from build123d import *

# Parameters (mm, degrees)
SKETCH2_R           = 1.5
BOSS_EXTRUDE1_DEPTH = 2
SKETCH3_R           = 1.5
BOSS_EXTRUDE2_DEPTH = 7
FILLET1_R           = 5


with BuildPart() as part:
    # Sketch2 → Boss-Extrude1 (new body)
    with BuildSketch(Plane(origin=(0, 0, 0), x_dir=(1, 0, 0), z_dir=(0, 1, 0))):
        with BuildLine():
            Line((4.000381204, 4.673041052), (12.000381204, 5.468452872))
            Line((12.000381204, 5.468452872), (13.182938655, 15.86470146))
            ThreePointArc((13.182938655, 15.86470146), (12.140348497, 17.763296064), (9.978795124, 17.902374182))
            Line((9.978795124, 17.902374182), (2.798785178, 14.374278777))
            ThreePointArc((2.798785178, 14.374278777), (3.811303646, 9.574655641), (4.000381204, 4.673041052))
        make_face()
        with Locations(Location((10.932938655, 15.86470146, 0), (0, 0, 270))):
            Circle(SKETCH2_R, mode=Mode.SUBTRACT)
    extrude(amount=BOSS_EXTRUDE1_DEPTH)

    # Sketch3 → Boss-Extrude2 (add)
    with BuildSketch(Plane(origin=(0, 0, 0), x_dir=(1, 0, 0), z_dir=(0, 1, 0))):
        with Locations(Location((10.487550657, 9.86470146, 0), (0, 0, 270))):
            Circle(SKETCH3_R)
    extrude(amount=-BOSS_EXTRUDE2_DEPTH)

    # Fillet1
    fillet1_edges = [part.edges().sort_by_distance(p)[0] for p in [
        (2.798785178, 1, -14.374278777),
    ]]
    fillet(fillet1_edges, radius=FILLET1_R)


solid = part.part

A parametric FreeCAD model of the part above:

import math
import FreeCAD as App
import Part
import Sketcher
from FreeCAD import Vector
Q = App.Units.Quantity


def edges_at(feature, points):
    """Names of the edges that pass closest to the given points."""
    edges = feature.Shape.Edges
    near = lambda p: min(range(len(edges)), key=lambda i: edges[i].distToShape(Part.Vertex(*p))[0])
    return sorted({f"Edge{near(p) + 1}" for p in points})

doc = App.newDocument("Part")
params = doc.addObject("Spreadsheet::Sheet", "Params")
for row, (alias, value) in enumerate([
    ("sketch1_diameter", "3 mm"),
    ("sketch1_radius", "2.25 mm"),
    ("sketch1_length", "8 mm"),
    ("pad1_length", "2 mm"),
    ("sketch2_diameter", "3 mm"),
    ("pad2_length", "7 mm"),
    ("fillet_radius", "5 mm"),
], start=1):
    params.set(f"A{row}", alias)
    params.set(f"B{row}", "=" + value)
    params.setAlias(f"B{row}", alias)

body = doc.addObject("PartDesign::Body", "Body")

# Sketch on XZ plane
sketch1 = body.newObject("Sketcher::SketchObject", "Sketch")
sketch1.AttachmentSupport = (doc.getObject("XZ_Plane"), [""])
sketch1.MapMode = "FlatFace"
sketch1.addGeometry([
    Part.LineSegment(Vector(4.000381, -4.673041, 0), Vector(12.000381, -5.468453, 0)),  # 0
    Part.LineSegment(Vector(12.000381, -5.468453, 0), Vector(13.182939, -15.864701, 0)),  # 1
    Part.ArcOfCircle(Part.Circle(Vector(10.932939, -15.864701, 0), Vector(0, 0, 1), 2.25), math.radians(-115.091419), math.radians(0)),  # 2
    Part.LineSegment(Vector(9.978795, -17.902374, 0), Vector(2.798785, -14.374279, 0)),  # 3
    Part.ArcOfCircle(Part.Circle(Vector(-24.967953, -6.010055, 0), Vector(0, 0, 1), 28.999172), math.radians(-16.763971), math.radians(2.642572)),  # 4
    Part.Circle(Vector(10.932939, -15.864701, 0), Vector(0, 0, 1), 1.5),  # 5
], False)
sketch1.addConstraint([
    Sketcher.Constraint("Coincident", 0, 2, 1, 1),
    Sketcher.Constraint("Coincident", 1, 2, 2, 2),
    Sketcher.Constraint("Coincident", 2, 1, 3, 1),
    Sketcher.Constraint("Coincident", 3, 2, 4, 1),
    Sketcher.Constraint("Coincident", 4, 2, 0, 1),
    Sketcher.Constraint("Coincident", 5, 3, 2, 3),
    Sketcher.Constraint("Horizontal", 5, 3, 1, 2),
    Sketcher.Constraint("Diameter", 5, Q("3 mm")),
    Sketcher.Constraint("Radius", 2, Q("2.25 mm")),
    Sketcher.Constraint("Distance", 3, Q("8 mm")),
    Sketcher.Constraint("DistanceX", 4, 2, 0, 2, Q("8 mm")),
    Sketcher.Constraint("Radius", 4, Q("28.999172 mm")),
    Sketcher.Constraint("DistanceY", 2, 3, -1, 1, Q("15.864701 mm")),
    Sketcher.Constraint("DistanceY", 4, 3, 0, 2, Q("0.541602 mm")),
    Sketcher.Constraint("Distance", 1, Q("10.463289 mm")),
    Sketcher.Constraint("DistanceX", -1, 1, 2, 3, Q("10.932939 mm")),
    Sketcher.Constraint("DistanceX", -1, 1, 0, 2, Q("12.000381 mm")),
    Sketcher.Constraint("DistanceY", 3, 2, -1, 1, Q("14.374279 mm")),
    Sketcher.Constraint("DistanceY", 4, 2, -1, 1, Q("4.673041 mm")),
])
sketch1.setExpression("Constraints[7]", "Params.sketch1_diameter")
sketch1.setExpression("Constraints[8]", "Params.sketch1_radius")
sketch1.setExpression("Constraints[9]", "Params.sketch1_length")
pad1 = body.newObject("PartDesign::Pad", "Pad")
pad1.Profile = sketch1
pad1.setExpression("Length", "Params.pad1_length")
pad1.Reversed = True

# Sketch on XZ plane
sketch2 = body.newObject("Sketcher::SketchObject", "Sketch001")
sketch2.AttachmentSupport = (doc.getObject("XZ_Plane"), [""])
sketch2.MapMode = "FlatFace"
sketch2.addGeometry(Part.Circle(Vector(10.487551, -9.864701, 0), Vector(0, 0, 1), 1.5), False)
sketch2.addConstraint([
    Sketcher.Constraint("Diameter", 0, Q("3 mm")),
    Sketcher.Constraint("DistanceY", 0, 3, -1, 1, Q("9.864701 mm")),
    Sketcher.Constraint("DistanceX", -1, 1, 0, 3, Q("10.487551 mm")),
])
sketch2.setExpression("Constraints[0]", "Params.sketch2_diameter")
pad2 = body.newObject("PartDesign::Pad", "Pad001")
pad2.Profile = sketch2
pad2.setExpression("Length", "Params.pad2_length")
doc.recompute()

fillet = body.newObject("PartDesign::Fillet", "Fillet")
fillet.Base = (pad2, edges_at(pad2, [(2.799, 1, -14.374)]))
fillet.setExpression("Radius", "Params.fillet_radius")

doc.recompute()
